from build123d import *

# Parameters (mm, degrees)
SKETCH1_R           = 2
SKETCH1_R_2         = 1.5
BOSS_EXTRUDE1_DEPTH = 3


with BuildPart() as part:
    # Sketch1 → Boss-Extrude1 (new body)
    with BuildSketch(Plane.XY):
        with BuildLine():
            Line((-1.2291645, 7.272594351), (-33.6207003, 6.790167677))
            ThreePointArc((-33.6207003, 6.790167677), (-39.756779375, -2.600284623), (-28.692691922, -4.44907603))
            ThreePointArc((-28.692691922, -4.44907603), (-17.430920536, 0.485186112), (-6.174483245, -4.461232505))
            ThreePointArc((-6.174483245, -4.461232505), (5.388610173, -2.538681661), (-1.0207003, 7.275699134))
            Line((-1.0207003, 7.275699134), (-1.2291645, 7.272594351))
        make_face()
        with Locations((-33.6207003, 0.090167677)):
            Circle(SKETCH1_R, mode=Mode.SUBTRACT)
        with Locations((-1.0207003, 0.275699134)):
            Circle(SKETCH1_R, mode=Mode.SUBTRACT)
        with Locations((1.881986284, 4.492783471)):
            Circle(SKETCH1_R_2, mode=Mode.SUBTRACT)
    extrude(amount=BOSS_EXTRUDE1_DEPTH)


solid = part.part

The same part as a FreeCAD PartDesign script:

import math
import FreeCAD as App
import Part
import Sketcher
Q = App.Units.Quantity

doc = App.newDocument("Part")
body = doc.addObject("PartDesign::Body", "Body")

# Sketch on XY plane
sketch1 = body.newObject("Sketcher::SketchObject", "Sketch")
sketch1.AttachmentSupport = (doc.getObject("XY_Plane"), [""])
sketch1.MapMode = "FlatFace"
sketch1.addGeometry(Part.LineSegment(App.Vector(-1.23, 7.27, 0), App.Vector(-33.62, 6.79, 0)), False)
sketch1.addGeometry(Part.ArcOfCircle(Part.Circle(App.Vector(-33.62, 0.09, 0), App.Vector(0, 0, 1), 6.7), math.radians(90), math.radians(317)), False)
sketch1.addGeometry(Part.ArcOfCircle(Part.Circle(App.Vector(-17.44, -14.81, 0), App.Vector(0, 0, 1), 15.3), math.radians(43), math.radians(137)), False)
sketch1.addGeometry(Part.ArcOfCircle(Part.Circle(App.Vector(-1.02, 0.28, 0), App.Vector(0, 0, 1), 7), math.radians(-137), math.radians(90)), False)
sketch1.addGeometry(Part.LineSegment(App.Vector(-1.02, 7.28, 0), App.Vector(-1.23, 7.27, 0)), False)
sketch1.addGeometry(Part.Circle(App.Vector(-33.62, 0.09, 0), App.Vector(0, 0, 1), 2), False)
sketch1.addGeometry(Part.Circle(App.Vector(-1.02, 0.28, 0), App.Vector(0, 0, 1), 2), False)
sketch1.addGeometry(Part.Circle(App.Vector(1.88, 4.49, 0), App.Vector(0, 0, 1), 1.5), False)
sketch1.addConstraint(Sketcher.Constraint("Coincident", 0, 2, 1, 1))
sketch1.addConstraint(Sketcher.Constraint("Tangent", 1, 2, 2, 2))
sketch1.addConstraint(Sketcher.Constraint("Tangent", 2, 1, 3, 1))
sketch1.addConstraint(Sketcher.Constraint("Coincident", 3, 2, 4, 1))
sketch1.addConstraint(Sketcher.Constraint("Coincident", 4, 2, 0, 1))
sketch1.addConstraint(Sketcher.Constraint("Coincident", 5, 3, 1, 3))
sketch1.addConstraint(Sketcher.Constraint("Coincident", 6, 3, 3, 3))
sketch1.addConstraint(Sketcher.Constraint("Equal", 5, 6))
sketch1.addConstraint(Sketcher.Constraint("Parallel", 0, 4))
sketch1.addConstraint(Sketcher.Constraint("Vertical", 5, 3, 0, 2))
sketch1.addConstraint(Sketcher.Constraint("Vertical", 6, 3, 3, 2))
sketch1.addConstraint(Sketcher.Constraint("Diameter", 5, Q("4 mm")))
sketch1.addConstraint(Sketcher.Constraint("Diameter", 7, Q("3 mm")))
sketch1.addConstraint(Sketcher.Constraint("Radius", 3, Q("7 mm")))
sketch1.addConstraint(Sketcher.Constraint("Radius", 1, Q("6.7 mm")))
sketch1.addConstraint(Sketcher.Constraint("Radius", 2, Q("15.3 mm")))
sketch1.addConstraint(Sketcher.Constraint("DistanceX", 1, 3, 3, 3, Q("32.6 mm")))
sketch1.addConstraint(Sketcher.Constraint("DistanceX", 1, 3, -1, 1, Q("33.6207 mm")))
sketch1.addConstraint(Sketcher.Constraint("DistanceY", -1, 1, 3, 3, Q("0.275699 mm")))
sketch1.addConstraint(Sketcher.Constraint("Distance", 0, Q("32.395128 mm")))
sketch1.addConstraint(Sketcher.Constraint("DistanceX", 2, 3, -1, 1, Q("17.43918 mm")))
sketch1.addConstraint(Sketcher.Constraint("DistanceX", 2, 1, 7, 3, Q("8.05647 mm")))
sketch1.addConstraint(Sketcher.Constraint("DistanceY", 7, 3, 4, 2, Q("2.779811 mm")))
pad1 = body.newObject("PartDesign::Pad", "Pad")
pad1.Profile = sketch1
pad1.Length = 3

doc.recompute()
